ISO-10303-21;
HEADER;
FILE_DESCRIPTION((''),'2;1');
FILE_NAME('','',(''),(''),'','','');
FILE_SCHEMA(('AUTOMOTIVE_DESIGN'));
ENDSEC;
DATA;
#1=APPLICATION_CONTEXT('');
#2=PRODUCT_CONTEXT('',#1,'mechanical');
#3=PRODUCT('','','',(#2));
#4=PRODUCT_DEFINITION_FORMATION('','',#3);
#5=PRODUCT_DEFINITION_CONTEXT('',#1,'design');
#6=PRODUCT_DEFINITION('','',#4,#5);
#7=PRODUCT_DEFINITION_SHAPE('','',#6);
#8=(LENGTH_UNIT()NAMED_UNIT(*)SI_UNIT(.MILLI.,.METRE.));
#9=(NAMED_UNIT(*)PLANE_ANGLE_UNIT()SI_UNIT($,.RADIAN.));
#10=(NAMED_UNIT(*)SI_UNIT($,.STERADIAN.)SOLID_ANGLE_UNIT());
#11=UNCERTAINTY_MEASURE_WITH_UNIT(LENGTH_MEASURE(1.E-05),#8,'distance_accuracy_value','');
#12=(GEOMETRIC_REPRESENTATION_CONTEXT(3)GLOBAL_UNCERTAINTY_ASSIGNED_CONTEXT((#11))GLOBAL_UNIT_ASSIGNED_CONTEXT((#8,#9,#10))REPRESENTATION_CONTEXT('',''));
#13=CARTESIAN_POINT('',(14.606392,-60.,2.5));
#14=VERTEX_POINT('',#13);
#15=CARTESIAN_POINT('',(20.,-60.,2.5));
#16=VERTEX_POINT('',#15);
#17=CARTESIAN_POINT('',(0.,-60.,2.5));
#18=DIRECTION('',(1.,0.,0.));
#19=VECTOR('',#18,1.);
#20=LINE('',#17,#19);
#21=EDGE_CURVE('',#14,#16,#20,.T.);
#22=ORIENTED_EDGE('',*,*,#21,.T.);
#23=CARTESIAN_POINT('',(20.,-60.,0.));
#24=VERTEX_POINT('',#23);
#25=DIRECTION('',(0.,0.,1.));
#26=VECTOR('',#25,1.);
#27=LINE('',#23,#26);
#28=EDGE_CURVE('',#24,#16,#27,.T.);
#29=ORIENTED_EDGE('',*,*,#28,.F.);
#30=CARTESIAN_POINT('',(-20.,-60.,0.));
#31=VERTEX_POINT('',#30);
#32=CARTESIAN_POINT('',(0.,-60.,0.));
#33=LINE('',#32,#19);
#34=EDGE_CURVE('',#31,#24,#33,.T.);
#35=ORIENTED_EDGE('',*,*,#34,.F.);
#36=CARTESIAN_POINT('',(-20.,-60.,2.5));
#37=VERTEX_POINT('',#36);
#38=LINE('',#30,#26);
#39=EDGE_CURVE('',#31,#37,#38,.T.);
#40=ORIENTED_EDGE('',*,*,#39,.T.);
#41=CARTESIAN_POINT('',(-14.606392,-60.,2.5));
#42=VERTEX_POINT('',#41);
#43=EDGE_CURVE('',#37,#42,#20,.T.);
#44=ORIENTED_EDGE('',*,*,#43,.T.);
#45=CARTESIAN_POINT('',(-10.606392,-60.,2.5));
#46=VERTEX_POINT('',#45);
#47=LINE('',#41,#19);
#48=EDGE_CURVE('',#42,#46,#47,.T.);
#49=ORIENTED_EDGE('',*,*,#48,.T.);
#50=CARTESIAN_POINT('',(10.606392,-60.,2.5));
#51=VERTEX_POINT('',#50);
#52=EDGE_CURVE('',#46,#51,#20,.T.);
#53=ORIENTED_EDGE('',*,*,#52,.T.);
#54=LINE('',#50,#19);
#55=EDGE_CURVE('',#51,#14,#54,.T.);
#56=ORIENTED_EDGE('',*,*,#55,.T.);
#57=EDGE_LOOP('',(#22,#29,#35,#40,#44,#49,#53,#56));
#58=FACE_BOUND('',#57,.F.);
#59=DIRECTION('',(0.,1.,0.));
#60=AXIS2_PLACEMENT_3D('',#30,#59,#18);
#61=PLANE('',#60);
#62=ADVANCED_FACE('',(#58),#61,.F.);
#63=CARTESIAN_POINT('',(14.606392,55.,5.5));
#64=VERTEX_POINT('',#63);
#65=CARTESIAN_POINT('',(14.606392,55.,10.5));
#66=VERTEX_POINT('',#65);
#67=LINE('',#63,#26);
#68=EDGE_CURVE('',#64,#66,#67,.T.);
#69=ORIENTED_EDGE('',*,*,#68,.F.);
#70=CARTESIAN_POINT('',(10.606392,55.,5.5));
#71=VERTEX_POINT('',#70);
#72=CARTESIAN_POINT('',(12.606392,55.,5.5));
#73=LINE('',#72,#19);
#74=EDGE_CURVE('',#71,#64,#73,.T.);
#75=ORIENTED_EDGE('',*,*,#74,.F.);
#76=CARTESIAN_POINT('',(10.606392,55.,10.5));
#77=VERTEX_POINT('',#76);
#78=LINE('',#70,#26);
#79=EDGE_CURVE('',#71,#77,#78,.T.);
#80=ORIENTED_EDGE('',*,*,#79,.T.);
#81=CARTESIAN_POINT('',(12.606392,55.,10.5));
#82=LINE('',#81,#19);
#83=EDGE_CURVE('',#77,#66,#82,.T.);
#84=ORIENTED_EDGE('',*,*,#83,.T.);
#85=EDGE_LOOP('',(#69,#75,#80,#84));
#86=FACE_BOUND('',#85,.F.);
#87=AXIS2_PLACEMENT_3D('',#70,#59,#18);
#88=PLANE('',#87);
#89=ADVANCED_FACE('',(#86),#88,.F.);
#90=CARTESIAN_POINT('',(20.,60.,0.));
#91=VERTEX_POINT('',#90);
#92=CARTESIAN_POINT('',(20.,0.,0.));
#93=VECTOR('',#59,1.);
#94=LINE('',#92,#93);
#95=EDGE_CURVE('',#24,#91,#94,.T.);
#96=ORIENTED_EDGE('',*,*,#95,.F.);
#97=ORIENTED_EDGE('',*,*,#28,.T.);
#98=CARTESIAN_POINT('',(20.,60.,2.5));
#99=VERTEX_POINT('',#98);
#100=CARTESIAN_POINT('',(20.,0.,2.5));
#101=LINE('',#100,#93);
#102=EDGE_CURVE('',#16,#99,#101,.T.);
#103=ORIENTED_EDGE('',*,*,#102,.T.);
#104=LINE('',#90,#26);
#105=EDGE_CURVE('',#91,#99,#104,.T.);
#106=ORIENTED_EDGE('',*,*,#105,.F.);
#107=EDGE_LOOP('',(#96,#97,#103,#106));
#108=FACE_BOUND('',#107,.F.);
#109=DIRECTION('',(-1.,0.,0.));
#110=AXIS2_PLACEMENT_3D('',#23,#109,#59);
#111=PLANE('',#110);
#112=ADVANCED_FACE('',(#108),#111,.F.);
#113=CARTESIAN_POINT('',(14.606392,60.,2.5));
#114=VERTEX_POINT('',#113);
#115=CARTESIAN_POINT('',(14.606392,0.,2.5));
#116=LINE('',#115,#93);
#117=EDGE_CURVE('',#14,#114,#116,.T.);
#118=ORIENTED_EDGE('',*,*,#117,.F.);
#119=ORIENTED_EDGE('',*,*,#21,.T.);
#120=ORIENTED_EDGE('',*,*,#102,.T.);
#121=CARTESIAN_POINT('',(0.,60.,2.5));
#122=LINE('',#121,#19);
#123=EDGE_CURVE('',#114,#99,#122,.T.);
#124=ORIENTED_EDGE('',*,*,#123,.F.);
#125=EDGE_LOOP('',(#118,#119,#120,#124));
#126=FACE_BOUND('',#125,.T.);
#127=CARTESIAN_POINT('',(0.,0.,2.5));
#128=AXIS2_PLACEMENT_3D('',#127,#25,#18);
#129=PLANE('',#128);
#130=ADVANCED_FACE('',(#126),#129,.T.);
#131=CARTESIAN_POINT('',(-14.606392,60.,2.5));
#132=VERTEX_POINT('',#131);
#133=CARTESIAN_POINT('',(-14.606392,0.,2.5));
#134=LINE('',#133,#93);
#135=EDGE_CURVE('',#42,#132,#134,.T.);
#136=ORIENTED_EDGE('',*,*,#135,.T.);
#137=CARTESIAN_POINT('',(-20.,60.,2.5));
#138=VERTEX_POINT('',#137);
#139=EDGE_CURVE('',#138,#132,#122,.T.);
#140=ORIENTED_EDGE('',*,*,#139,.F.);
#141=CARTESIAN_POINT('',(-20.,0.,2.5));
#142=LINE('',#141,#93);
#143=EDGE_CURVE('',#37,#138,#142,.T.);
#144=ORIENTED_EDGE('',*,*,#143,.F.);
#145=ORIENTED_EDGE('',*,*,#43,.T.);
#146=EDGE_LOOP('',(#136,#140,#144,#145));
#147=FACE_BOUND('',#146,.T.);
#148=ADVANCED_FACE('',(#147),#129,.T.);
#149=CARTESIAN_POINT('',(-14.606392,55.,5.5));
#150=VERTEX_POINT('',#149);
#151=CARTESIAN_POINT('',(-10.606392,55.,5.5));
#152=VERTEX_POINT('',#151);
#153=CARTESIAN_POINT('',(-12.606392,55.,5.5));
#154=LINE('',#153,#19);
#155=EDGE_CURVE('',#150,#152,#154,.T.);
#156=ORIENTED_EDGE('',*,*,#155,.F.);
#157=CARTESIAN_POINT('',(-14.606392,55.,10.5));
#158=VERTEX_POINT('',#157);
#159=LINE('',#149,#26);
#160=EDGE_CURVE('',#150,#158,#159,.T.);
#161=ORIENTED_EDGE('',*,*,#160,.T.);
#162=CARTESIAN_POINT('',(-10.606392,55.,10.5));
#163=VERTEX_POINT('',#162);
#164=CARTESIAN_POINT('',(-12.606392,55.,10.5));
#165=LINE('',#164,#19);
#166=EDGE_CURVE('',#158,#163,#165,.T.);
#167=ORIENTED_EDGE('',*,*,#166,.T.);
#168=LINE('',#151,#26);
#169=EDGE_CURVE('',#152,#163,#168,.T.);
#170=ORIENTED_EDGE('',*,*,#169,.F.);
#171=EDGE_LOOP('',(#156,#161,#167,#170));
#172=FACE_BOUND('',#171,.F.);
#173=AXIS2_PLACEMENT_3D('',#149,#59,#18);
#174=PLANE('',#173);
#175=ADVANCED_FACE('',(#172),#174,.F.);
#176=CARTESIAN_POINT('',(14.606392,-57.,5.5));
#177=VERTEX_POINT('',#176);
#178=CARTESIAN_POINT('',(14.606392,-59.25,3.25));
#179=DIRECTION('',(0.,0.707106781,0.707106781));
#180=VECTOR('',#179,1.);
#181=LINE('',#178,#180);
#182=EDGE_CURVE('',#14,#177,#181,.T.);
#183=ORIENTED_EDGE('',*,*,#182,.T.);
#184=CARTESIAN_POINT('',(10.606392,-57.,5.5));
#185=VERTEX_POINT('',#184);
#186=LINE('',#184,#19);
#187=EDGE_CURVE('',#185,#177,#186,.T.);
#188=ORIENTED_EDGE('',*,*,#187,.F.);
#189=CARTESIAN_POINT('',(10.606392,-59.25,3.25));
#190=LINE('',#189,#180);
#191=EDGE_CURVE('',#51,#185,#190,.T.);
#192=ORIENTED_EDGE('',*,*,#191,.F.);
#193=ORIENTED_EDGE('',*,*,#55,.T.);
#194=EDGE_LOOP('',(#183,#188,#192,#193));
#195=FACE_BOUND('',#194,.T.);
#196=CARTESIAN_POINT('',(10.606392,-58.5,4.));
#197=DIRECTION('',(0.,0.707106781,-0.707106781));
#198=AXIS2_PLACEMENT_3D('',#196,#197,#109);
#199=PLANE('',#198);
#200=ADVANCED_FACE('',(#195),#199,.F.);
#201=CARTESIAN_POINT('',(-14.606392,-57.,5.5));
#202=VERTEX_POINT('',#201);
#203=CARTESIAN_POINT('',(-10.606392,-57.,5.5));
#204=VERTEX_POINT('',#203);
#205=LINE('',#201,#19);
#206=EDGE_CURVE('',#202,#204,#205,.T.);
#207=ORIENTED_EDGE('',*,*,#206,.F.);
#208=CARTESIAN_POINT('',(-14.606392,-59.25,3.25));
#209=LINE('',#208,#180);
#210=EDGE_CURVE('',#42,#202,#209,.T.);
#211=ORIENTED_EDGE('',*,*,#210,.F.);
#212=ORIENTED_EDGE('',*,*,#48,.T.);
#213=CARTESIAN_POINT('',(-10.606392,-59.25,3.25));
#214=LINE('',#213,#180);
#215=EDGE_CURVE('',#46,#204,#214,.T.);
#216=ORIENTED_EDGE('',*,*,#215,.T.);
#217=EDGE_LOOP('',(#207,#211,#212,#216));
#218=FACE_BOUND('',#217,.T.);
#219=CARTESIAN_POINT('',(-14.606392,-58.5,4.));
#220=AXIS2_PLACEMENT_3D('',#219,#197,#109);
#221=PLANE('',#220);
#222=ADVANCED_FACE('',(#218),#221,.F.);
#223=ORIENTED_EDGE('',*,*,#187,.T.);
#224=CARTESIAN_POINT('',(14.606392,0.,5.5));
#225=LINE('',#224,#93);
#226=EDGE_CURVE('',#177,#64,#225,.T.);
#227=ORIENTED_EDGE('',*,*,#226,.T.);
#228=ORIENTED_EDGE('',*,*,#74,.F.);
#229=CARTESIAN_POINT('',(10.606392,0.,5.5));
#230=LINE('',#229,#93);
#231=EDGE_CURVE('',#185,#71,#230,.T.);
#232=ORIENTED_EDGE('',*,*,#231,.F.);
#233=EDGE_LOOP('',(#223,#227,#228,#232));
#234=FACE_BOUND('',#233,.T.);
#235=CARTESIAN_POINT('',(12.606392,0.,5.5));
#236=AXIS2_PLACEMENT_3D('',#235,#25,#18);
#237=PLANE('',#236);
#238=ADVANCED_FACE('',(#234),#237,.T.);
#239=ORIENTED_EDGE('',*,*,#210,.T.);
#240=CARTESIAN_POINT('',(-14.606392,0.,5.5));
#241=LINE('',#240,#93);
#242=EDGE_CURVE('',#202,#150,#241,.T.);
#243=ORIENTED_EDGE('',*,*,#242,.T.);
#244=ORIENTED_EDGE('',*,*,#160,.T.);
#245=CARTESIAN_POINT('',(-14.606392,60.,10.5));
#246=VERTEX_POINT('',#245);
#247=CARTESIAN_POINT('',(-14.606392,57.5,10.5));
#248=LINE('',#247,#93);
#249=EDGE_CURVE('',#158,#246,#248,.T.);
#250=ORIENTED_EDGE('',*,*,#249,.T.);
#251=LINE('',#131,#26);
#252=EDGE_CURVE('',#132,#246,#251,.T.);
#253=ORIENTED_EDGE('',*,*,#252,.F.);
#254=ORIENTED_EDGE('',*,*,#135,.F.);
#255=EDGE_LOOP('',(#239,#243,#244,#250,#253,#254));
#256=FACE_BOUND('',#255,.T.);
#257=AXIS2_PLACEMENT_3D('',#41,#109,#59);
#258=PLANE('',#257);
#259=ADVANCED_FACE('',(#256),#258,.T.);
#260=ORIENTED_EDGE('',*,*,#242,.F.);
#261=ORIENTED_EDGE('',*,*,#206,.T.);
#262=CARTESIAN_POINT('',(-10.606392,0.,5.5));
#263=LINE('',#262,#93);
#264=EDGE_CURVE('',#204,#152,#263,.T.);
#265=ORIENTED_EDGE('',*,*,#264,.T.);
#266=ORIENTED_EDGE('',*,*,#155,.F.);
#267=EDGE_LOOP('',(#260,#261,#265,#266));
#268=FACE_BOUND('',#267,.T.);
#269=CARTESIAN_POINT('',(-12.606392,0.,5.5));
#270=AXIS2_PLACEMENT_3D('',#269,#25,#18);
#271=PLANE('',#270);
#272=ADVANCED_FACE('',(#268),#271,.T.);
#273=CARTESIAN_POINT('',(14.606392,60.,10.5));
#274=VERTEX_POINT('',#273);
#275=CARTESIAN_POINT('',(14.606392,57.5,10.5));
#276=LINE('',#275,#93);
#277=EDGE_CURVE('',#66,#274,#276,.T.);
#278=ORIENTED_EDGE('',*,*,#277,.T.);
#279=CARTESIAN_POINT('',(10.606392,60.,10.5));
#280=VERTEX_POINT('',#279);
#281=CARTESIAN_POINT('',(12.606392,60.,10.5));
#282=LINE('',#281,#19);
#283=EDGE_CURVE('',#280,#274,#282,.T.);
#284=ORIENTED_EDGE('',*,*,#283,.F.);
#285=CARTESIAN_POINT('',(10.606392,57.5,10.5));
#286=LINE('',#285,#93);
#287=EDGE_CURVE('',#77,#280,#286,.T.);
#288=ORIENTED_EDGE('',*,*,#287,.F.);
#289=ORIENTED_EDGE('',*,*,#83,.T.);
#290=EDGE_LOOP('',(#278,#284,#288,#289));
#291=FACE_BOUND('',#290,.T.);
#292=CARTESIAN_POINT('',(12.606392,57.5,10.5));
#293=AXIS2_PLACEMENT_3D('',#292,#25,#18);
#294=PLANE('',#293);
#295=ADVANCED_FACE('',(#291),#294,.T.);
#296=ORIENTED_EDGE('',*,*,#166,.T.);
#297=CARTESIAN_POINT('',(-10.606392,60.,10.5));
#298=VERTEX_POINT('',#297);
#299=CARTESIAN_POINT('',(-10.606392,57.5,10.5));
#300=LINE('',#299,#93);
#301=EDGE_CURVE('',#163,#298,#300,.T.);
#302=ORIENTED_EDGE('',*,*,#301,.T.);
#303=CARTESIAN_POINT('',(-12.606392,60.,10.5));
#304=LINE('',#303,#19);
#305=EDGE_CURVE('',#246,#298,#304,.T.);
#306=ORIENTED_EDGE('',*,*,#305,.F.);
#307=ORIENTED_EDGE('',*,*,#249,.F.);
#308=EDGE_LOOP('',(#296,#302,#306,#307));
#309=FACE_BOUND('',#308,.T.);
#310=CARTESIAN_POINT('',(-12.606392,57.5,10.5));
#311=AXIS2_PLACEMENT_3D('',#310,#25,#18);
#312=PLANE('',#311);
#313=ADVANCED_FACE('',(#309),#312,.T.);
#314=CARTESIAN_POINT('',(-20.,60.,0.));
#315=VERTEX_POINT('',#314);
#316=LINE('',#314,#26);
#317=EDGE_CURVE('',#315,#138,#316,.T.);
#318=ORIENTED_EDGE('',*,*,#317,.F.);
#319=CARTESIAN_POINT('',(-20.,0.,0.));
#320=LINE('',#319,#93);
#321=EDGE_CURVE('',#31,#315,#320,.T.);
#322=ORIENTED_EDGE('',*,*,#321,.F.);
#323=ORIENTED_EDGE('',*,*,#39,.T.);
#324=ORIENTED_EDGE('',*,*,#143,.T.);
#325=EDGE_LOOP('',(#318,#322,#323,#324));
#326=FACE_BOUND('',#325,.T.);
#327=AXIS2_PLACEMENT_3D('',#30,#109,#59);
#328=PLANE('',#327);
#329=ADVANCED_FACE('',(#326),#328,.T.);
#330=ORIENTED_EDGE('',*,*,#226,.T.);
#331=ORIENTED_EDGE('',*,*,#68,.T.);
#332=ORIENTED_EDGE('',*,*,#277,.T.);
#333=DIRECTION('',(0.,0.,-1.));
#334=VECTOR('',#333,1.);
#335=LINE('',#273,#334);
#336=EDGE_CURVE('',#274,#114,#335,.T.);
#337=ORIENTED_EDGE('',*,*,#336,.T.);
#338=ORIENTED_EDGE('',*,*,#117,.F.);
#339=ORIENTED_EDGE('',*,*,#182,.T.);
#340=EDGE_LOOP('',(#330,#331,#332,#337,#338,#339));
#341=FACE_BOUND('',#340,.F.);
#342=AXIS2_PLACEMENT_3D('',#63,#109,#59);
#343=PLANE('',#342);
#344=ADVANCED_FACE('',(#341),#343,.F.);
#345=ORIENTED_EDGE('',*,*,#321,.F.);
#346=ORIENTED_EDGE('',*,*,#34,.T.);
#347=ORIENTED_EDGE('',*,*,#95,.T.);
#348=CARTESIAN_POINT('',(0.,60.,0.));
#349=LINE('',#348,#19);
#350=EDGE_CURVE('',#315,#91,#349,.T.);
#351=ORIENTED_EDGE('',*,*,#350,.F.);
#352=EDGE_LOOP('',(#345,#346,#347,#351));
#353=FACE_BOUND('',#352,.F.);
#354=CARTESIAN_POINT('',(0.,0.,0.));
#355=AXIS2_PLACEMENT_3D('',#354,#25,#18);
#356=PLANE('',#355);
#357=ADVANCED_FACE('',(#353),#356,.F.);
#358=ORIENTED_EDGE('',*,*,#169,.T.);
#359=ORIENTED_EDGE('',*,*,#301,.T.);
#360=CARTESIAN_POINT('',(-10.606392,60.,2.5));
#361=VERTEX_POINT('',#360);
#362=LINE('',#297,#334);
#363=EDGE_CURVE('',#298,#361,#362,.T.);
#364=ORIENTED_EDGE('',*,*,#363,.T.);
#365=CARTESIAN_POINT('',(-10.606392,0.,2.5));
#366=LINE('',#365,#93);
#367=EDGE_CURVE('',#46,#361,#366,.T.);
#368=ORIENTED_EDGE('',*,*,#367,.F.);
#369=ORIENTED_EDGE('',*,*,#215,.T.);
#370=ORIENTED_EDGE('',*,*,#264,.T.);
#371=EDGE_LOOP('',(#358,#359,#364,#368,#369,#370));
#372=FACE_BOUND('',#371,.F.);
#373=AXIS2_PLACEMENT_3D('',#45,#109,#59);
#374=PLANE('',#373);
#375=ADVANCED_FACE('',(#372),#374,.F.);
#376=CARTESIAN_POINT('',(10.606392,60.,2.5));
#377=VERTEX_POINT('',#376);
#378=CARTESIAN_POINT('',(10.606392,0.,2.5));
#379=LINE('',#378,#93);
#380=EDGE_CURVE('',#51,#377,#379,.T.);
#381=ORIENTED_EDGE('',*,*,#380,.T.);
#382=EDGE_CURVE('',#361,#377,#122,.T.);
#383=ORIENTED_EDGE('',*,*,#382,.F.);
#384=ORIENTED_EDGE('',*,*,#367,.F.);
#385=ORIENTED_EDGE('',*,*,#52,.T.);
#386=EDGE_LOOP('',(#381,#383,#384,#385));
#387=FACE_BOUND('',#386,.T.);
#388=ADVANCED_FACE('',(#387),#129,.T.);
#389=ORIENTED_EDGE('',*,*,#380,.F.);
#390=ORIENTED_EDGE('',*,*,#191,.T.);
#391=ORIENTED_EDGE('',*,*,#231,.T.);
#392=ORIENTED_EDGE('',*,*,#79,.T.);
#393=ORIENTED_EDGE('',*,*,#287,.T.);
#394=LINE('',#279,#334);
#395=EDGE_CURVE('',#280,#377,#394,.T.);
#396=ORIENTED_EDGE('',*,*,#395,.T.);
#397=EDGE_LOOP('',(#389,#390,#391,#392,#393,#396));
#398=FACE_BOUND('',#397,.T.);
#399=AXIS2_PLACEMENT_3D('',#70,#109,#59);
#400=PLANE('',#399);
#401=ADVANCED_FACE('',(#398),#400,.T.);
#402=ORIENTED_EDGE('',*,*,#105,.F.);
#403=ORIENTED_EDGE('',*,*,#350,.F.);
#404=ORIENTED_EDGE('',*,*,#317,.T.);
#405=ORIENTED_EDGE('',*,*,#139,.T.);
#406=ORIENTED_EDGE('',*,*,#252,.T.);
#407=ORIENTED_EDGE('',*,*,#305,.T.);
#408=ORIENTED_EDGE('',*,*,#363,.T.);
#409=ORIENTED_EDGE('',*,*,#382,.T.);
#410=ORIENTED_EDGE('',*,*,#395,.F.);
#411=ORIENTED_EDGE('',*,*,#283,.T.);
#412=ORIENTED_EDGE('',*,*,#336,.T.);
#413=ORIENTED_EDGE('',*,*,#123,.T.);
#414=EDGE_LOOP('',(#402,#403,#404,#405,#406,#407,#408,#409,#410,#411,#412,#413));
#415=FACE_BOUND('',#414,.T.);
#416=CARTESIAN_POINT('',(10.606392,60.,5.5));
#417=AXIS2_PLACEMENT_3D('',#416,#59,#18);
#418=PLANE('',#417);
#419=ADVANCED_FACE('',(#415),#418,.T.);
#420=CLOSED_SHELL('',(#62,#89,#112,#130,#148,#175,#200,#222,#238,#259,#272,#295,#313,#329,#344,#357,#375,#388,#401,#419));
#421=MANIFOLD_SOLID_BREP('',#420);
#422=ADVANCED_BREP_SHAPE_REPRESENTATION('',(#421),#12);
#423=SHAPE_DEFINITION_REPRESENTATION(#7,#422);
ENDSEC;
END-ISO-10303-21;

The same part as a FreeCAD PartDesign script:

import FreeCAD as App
import Part
import Sketcher
from FreeCAD import Vector


def edges_at(feature, points):
    """Names of the edges that pass closest to the given points."""
    edges = feature.Shape.Edges
    near = lambda p: min(range(len(edges)), key=lambda i: edges[i].distToShape(Part.Vertex(*p))[0])
    return sorted({f"Edge{near(p) + 1}" for p in points})


def add_polygon(sketch, points):
    """Adds a closed chain of lines whose ends are joined by coincident constraints."""
    first, n = sketch.GeometryCount, len(points)
    for a, b in zip(points, points[1:] + points[:1]):
        sketch.addGeometry(Part.LineSegment(App.Vector(*a, 0), App.Vector(*b, 0)), False)
    for i in range(n):
        sketch.addConstraint(Sketcher.Constraint("Coincident", first + i, 2, first + (i + 1) % n, 1))

doc = App.newDocument("Part")
body = doc.addObject("PartDesign::Body", "Body")

# Sketch on XY plane
sketch1 = doc.addObject("Sketcher::SketchObject", "Sketch")
body.addObject(sketch1)
sketch1.AttachmentSupport = (doc.XY_Plane, [""])
sketch1.MapMode = "FlatFace"
add_polygon(sketch1, [(-20, 60), (-20, -60), (20, -60), (20, 60)])  # lines 0-3
sketch1.addConstraint([
    Sketcher.Constraint("Vertical", 0),
    Sketcher.Constraint("Horizontal", 1),
    Sketcher.Constraint("Vertical", 2),
    Sketcher.Constraint("Horizontal", 3),
    Sketcher.Constraint("Symmetric", 0, 2, 2, 2, -1, 1),
    Sketcher.Constraint("DistanceX", 1, 1, 1, 2, 40.0),
    Sketcher.Constraint("DistanceY", 0, 2, 0, 1, 120.0),
])
pad1 = doc.addObject("PartDesign::Pad", "Pad")
body.addObject(pad1)
pad1.Profile = sketch1
pad1.Length = 2.5

# Sketch on XY plane
sketch2 = doc.addObject("Sketcher::SketchObject", "Sketch001")
body.addObject(sketch2)
sketch2.AttachmentSupport = (doc.XY_Plane, [""])
sketch2.MapMode = "FlatFace"
sketch2.AttachmentOffset = App.Placement(Vector(0, 0, 2.5), App.Rotation())
add_polygon(sketch2, [(-14.6, 60), (-14.6, -60), (-10.6, -60), (-10.6, 60)])  # lines 0-3
add_polygon(sketch2, [(10.6, 60), (10.6, -60), (14.6, -60), (14.6, 60)])  # lines 4-7
sketch2.addConstraint([
    Sketcher.Constraint("Vertical", 0),
    Sketcher.Constraint("Horizontal", 1),
    Sketcher.Constraint("Vertical", 2),
    Sketcher.Constraint("Horizontal", 3),
    Sketcher.Constraint("Vertical", 4),
    Sketcher.Constraint("Horizontal", 5),
    Sketcher.Constraint("Vertical", 6),
    Sketcher.Constraint("Horizontal", 7),
    Sketcher.Constraint("Symmetric", 2, 2, 4, 2, -1, 1),
    Sketcher.Constraint("Symmetric", 0, 2, 6, 2, -1, 1),
    Sketcher.Constraint("Horizontal", 1, 2, 4, 2),
    Sketcher.Constraint("DistanceX", 1, 1, 1, 2, 4.0),
    Sketcher.Constraint("DistanceY", 0, 2, 0, 1, 120.0),
    Sketcher.Constraint("DistanceX", 0, 2, -1, 1, 14.606392),
])
pad2 = doc.addObject("PartDesign::Pad", "Pad001")
body.addObject(pad2)
pad2.Profile = sketch2
pad2.Length = 3
doc.recompute()

chamfer = doc.addObject("PartDesign::Chamfer", "Chamfer")
body.addObject(chamfer)
chamfer.Base = (pad2, edges_at(pad2, [(-12.606, -60, 5.5), (12.606, -60, 5.5)]))
chamfer.Size = 3

# Sketch on XY plane
sketch3 = doc.addObject("Sketcher::SketchObject", "Sketch002")
body.addObject(sketch3)
sketch3.AttachmentSupport = (doc.XY_Plane, [""])
sketch3.MapMode = "FlatFace"
sketch3.AttachmentOffset = App.Placement(Vector(0, 0, 5.5), App.Rotation())
add_polygon(sketch3, [(10.6, 60), (10.6, 55), (14.6, 55), (14.6, 60)])  # lines 0-3
add_polygon(sketch3, [(-14.6, 60), (-14.6, 55), (-10.6, 55), (-10.6, 60)])  # lines 4-7
sketch3.addConstraint([
    Sketcher.Constraint("Vertical", 0),
    Sketcher.Constraint("Horizontal", 1),
    Sketcher.Constraint("Vertical", 2),
    Sketcher.Constraint("Horizontal", 3),
    Sketcher.Constraint("Vertical", 4),
    Sketcher.Constraint("Horizontal", 5),
    Sketcher.Constraint("Vertical", 6),
    Sketcher.Constraint("Horizontal", 7),
    Sketcher.Constraint("Symmetric", 1, 2, 4, 2, -2),
    Sketcher.Constraint("Symmetric", 3, 2, 6, 2, -2),
    Sketcher.Constraint("DistanceX", 1, 1, 1, 2, 4.0),
    Sketcher.Constraint("DistanceY", 0, 2, 0, 1, 5.0),
    Sketcher.Constraint("DistanceY", -1, 1, 0, 2, 55.0),
    Sketcher.Constraint("DistanceX", -1, 1, 0, 2, 10.606392),
])
pad3 = doc.addObject("PartDesign::Pad", "Pad002")
body.addObject(pad3)
pad3.Profile = sketch3
pad3.Length = 5

doc.recompute()
